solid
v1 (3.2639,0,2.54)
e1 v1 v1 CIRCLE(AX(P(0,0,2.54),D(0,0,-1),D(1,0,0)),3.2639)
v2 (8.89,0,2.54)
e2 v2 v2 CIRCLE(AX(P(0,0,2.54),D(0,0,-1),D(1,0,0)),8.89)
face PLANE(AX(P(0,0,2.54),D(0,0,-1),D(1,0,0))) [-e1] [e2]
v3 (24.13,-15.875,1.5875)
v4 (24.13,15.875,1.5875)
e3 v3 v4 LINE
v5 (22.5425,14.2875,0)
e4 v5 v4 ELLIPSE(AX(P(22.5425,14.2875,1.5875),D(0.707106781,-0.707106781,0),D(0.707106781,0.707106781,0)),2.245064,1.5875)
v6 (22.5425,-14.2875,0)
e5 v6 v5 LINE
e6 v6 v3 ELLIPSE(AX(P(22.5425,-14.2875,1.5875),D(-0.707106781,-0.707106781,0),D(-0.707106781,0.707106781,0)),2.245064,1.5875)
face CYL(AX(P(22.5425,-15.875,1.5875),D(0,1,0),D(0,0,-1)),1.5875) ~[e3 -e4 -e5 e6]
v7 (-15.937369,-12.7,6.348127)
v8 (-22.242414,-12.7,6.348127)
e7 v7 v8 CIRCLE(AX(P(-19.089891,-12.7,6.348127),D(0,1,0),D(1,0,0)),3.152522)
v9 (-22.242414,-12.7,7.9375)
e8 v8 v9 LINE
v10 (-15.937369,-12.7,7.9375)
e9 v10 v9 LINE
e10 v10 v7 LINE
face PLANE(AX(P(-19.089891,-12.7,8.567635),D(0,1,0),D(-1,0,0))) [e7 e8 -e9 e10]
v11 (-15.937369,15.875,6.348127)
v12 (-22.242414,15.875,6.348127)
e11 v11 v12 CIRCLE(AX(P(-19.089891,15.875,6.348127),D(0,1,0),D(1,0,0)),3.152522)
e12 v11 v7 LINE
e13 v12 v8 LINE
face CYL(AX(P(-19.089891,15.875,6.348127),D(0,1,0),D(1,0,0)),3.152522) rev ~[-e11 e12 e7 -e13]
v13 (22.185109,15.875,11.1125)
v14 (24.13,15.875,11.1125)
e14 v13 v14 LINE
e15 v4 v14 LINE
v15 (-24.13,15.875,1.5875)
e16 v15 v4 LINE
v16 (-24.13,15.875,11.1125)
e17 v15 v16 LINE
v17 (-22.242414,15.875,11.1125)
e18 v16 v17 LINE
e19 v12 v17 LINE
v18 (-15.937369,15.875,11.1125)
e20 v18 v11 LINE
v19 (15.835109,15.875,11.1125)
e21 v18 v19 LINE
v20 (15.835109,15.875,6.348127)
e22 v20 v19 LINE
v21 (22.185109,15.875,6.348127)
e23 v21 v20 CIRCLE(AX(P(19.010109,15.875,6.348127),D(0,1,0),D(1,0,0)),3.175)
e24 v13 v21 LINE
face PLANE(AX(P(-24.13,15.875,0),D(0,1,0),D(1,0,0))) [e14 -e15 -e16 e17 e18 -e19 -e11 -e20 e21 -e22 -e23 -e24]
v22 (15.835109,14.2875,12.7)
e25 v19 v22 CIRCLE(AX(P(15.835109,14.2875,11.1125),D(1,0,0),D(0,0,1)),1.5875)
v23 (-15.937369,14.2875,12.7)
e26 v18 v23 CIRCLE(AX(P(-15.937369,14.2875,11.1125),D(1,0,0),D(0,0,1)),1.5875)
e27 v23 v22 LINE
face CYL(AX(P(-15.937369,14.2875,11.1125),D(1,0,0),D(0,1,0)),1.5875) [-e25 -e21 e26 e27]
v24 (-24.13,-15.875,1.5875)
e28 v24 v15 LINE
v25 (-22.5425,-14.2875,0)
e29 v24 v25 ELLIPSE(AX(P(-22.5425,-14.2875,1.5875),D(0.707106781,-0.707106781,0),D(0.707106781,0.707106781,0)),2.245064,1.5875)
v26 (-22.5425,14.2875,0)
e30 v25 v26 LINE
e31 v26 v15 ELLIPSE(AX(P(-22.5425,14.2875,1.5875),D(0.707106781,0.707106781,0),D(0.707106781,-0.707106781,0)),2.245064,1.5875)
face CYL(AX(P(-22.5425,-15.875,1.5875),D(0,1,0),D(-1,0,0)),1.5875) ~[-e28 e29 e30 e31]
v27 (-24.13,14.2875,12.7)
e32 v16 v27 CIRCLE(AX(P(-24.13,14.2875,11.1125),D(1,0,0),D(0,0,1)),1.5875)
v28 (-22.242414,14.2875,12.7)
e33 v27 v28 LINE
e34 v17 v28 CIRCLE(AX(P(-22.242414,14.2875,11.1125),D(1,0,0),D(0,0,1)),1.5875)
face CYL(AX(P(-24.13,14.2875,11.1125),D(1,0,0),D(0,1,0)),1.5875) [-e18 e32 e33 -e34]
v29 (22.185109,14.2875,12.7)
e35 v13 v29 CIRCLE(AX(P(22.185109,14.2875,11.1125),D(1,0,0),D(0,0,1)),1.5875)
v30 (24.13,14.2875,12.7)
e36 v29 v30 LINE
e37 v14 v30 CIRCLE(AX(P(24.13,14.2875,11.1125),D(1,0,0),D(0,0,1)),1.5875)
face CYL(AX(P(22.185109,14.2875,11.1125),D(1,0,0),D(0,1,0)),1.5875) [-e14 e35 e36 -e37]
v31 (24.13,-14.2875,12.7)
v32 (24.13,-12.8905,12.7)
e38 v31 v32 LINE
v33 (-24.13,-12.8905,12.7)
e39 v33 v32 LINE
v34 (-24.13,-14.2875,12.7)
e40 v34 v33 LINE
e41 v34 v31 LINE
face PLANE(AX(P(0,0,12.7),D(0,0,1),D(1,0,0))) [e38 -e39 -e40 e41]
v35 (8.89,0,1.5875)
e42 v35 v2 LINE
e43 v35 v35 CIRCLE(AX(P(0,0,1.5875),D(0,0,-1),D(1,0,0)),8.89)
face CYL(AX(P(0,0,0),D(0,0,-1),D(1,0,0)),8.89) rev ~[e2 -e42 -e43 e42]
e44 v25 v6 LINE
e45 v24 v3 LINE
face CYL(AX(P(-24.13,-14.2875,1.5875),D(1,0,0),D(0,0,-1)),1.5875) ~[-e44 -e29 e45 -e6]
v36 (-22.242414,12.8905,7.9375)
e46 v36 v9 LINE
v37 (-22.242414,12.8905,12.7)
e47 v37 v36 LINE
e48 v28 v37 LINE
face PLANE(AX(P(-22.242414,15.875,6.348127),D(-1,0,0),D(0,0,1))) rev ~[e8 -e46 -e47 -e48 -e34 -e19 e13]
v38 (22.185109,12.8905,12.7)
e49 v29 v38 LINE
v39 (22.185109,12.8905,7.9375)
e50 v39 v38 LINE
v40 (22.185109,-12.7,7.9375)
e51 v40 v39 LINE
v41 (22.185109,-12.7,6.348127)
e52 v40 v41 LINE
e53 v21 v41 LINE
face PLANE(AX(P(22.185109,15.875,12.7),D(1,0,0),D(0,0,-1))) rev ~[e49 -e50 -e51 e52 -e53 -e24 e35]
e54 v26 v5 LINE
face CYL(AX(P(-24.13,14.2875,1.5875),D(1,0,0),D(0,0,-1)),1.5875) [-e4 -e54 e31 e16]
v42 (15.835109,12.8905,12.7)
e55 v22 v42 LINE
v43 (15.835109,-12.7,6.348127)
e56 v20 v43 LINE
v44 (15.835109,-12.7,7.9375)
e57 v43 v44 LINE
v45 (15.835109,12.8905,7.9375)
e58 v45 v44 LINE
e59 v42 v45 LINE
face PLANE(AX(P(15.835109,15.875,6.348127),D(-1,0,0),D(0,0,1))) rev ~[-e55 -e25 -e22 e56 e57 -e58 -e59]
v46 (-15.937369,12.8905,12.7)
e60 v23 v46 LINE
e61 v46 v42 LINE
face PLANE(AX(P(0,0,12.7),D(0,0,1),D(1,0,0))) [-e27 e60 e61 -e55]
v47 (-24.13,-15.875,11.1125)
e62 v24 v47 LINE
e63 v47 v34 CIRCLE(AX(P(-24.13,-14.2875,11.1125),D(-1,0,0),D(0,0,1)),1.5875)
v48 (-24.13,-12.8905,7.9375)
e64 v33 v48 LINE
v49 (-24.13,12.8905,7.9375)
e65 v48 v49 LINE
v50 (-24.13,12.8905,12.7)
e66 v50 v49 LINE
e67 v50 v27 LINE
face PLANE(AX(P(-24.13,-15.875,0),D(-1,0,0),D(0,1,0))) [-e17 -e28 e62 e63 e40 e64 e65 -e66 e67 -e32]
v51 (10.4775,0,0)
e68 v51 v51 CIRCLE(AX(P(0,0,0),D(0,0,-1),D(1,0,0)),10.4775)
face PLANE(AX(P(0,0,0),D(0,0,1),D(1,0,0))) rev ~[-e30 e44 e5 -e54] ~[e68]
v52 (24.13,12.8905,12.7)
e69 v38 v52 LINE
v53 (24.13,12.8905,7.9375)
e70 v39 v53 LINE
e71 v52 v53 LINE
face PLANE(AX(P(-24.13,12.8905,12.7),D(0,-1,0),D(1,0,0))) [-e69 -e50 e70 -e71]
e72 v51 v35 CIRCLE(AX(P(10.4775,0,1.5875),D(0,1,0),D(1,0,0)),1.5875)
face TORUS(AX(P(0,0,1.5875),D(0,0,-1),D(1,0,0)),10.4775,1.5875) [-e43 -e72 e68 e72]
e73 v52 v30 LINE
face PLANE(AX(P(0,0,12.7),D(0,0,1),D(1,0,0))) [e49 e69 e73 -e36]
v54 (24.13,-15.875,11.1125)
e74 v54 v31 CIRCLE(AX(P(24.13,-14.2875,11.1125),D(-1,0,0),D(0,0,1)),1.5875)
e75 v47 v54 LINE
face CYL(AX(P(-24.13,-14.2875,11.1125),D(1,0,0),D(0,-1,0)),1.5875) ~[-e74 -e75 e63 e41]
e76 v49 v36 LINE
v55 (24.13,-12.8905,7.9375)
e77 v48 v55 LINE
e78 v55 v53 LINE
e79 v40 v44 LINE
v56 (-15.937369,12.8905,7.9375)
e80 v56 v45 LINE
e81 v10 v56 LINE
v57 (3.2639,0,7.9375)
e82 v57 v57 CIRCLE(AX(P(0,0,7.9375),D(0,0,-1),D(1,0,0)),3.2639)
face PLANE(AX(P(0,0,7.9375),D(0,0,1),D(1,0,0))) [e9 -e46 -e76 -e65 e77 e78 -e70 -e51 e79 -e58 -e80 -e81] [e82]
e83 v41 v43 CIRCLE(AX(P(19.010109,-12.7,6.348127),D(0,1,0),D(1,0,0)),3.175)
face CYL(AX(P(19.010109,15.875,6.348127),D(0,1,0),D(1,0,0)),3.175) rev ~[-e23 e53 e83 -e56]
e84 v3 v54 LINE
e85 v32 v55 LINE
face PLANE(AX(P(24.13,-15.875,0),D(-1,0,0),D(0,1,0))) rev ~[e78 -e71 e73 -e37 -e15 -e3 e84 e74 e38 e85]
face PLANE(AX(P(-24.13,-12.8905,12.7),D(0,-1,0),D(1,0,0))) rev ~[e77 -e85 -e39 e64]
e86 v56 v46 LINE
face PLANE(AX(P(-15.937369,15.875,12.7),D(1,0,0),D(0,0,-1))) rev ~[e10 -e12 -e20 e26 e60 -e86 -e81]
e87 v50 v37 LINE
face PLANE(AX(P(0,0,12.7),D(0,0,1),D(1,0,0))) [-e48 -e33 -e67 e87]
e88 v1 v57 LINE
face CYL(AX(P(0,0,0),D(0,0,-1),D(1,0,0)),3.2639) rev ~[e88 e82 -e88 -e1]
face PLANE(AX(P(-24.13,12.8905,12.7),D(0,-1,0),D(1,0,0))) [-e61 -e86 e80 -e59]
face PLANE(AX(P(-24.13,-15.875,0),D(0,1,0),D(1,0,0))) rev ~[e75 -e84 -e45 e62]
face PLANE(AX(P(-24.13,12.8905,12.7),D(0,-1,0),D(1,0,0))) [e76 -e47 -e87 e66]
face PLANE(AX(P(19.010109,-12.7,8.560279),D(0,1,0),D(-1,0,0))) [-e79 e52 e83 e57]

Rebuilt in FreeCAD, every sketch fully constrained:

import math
import FreeCAD as App
import Part
import Sketcher
Q = App.Units.Quantity


def edges_at(feature, points):
    """Names of the edges that pass closest to the given points."""
    edges = feature.Shape.Edges
    near = lambda p: min(range(len(edges)), key=lambda i: edges[i].distToShape(Part.Vertex(*p))[0])
    return sorted({f"Edge{near(p) + 1}" for p in points})


def add_polygon(sketch, points):
    """Adds a closed chain of lines whose ends are joined by coincident constraints."""
    first, n = sketch.GeometryCount, len(points)
    for a, b in zip(points, points[1:] + points[:1]):
        sketch.addGeometry(Part.LineSegment(App.Vector(*a, 0), App.Vector(*b, 0)), False)
    for i in range(n):
        sketch.addConstraint(Sketcher.Constraint("Coincident", first + i, 2, first + (i + 1) % n, 1))

doc = App.newDocument("Part")
body = doc.addObject("PartDesign::Body", "Body")

sketch1 = doc.addObject("Sketcher::SketchObject", "Sketch")
body.addObject(sketch1)
sketch1.AttachmentSupport = (doc.XY_Plane, [""])
sketch1.MapMode = "FlatFace"
add_polygon(sketch1, [(-24, 16), (-24, -16), (24, -16), (24, 16)])
sketch1.addConstraint([
    Sketcher.Constraint("Vertical", 0),
    Sketcher.Constraint("Horizontal", 1),
    Sketcher.Constraint("Vertical", 2),
    Sketcher.Constraint("Horizontal", 3),
    Sketcher.Constraint("Symmetric", 0, 2, 2, 2, -1, 1),
    Sketcher.Constraint("DistanceX", 1, 1, 1, 2, Q("1.9 in")),
    Sketcher.Constraint("DistanceY", 0, 2, 0, 1, Q("1.25 in")),
])
pad1 = doc.addObject("PartDesign::Pad", "Pad")
body.addObject(pad1)
pad1.Profile = sketch1
pad1.Length = Q("0.5 in")

sketch2 = doc.addObject("Sketcher::SketchObject", "Sketch001")
body.addObject(sketch2)
sketch2.AttachmentSupport = (doc.XY_Plane, [""])
sketch2.MapMode = "FlatFace"
sketch2.AttachmentOffset = App.Placement(App.Vector(0, 0, 0.5 * 25.4), App.Rotation())
add_polygon(sketch2, [(-24, 13), (-24, -13), (24, -13), (24, 13)])
sketch2.addConstraint([
    Sketcher.Constraint("Vertical", 0),
    Sketcher.Constraint("Horizontal", 1),
    Sketcher.Constraint("Vertical", 2),
    Sketcher.Constraint("Horizontal", 3),
    Sketcher.Constraint("Symmetric", 0, 2, 2, 2, -1, 1),
    Sketcher.Constraint("DistanceX", 1, 1, 1, 2, Q("1.9 in")),
    Sketcher.Constraint("DistanceY", 0, 2, 0, 1, Q("1.015 in")),
])
pocket1 = doc.addObject("PartDesign::Pocket", "Pocket")
body.addObject(pocket1)
pocket1.Profile = sketch2
pocket1.Length = Q("0.1875 in")

sketch3 = doc.addObject("Sketcher::SketchObject", "Sketch002")
body.addObject(sketch3)
sketch3.AttachmentSupport = (doc.XZ_Plane, [""])
sketch3.MapMode = "FlatFace"
sketch3.AttachmentOffset = App.Placement(App.Vector(0, 0, -0.625 * 25.4), App.Rotation())
sketch3.addGeometry([
    Part.LineSegment(App.Vector(22.2, 12.7, 0), App.Vector(22.2, 6.3, 0)),
    Part.ArcOfCircle(Part.Circle(App.Vector(19, 6.3, 0), App.Vector(0, 0, 1), 3.2), math.radians(180), math.radians(360)),
    Part.LineSegment(App.Vector(15.8, 6.3, 0), App.Vector(15.8, 12.7, 0)),
    Part.LineSegment(App.Vector(15.8, 12.7, 0), App.Vector(22.2, 12.7, 0)),
    Part.LineSegment(App.Vector(-22.2, 12.7, 0), App.Vector(-15.9, 12.7, 0)),
    Part.LineSegment(App.Vector(-15.9, 12.7, 0), App.Vector(-15.9, 6.3, 0)),
    Part.ArcOfCircle(Part.Circle(App.Vector(-19.1, 6.3, 0), App.Vector(0, 0, 1), 3.2), math.radians(180), math.radians(360)),
    Part.LineSegment(App.Vector(-22.2, 6.3, 0), App.Vector(-22.2, 12.7, 0)),
], False)
sketch3.addConstraint([
    Sketcher.Constraint("Tangent", 0, 2, 1, 2),
    Sketcher.Constraint("Tangent", 1, 1, 2, 1),
    Sketcher.Constraint("Coincident", 2, 2, 3, 1),
    Sketcher.Constraint("Coincident", 3, 2, 0, 1),
    Sketcher.Constraint("Coincident", 4, 2, 5, 1),
    Sketcher.Constraint("Tangent", 5, 2, 6, 2),
    Sketcher.Constraint("Tangent", 6, 1, 7, 1),
    Sketcher.Constraint("Coincident", 7, 2, 4, 1),
    Sketcher.Constraint("Vertical", 0),
    Sketcher.Constraint("Vertical", 2),
    Sketcher.Constraint("Horizontal", 3),
    Sketcher.Constraint("Horizontal", 4),
    Sketcher.Constraint("Vertical", 5),
    Sketcher.Constraint("Vertical", 7),
    Sketcher.Constraint("Horizontal", 1, 3, 6, 3),
    Sketcher.Constraint("Horizontal", 3, 2, 4, 2),
    Sketcher.Constraint("Radius", 1, Q("0.125 in")),
    Sketcher.Constraint("DistanceY", -1, 1, 2, 2, Q("0.5 in")),
    Sketcher.Constraint("DistanceX", 6, 3, 1, 3, Q("1.5 in")),
    Sketcher.Constraint("Radius", 6, 3.152522),
    Sketcher.Constraint("DistanceY", 0, 2, 0, 1, 6.351873),
    Sketcher.Constraint("DistanceX", -1, 1, 1, 3, 19.010109),
])
pocket2 = doc.addObject("PartDesign::Pocket", "Pocket001")
body.addObject(pocket2)
pocket2.Profile = sketch3
pocket2.Length = Q("1.125 in")
pocket2.Reversed = True

sketch4 = doc.addObject("Sketcher::SketchObject", "Sketch003")
body.addObject(sketch4)
sketch4.AttachmentSupport = (doc.XY_Plane, [""])
sketch4.MapMode = "FlatFace"
sketch4.addGeometry(Part.Circle(App.Vector(0, 0, 0), App.Vector(0, 0, 1), 3.3), False)
sketch4.addConstraint([
    Sketcher.Constraint("Coincident", 0, 3, -1, 1),
    Sketcher.Constraint("Diameter", 0, Q("0.257 in")),
])
pocket3 = doc.addObject("PartDesign::Pocket", "Pocket002")
body.addObject(pocket3)
pocket3.Profile = sketch4
pocket3.Type = "ThroughAll"
pocket3.Reversed = True

sketch5 = doc.addObject("Sketcher::SketchObject", "Sketch004")
body.addObject(sketch5)
sketch5.AttachmentSupport = (doc.XY_Plane, [""])
sketch5.MapMode = "FlatFace"
sketch5.addGeometry([
    Part.Circle(App.Vector(0, 0, 0), App.Vector(0, 0, 1), 8.9),
    Part.Circle(App.Vector(0, 0, 0), App.Vector(0, 0, 1), 3.3),
], False)
sketch5.addConstraint([
    Sketcher.Constraint("Coincident", 0, 3, -1, 1),
    Sketcher.Constraint("Coincident", 1, 3, -1, 1),
    Sketcher.Constraint("Diameter", 0, Q("0.7 in")),
    Sketcher.Constraint("Diameter", 1, Q("0.257 in")),
])
pocket4 = doc.addObject("PartDesign::Pocket", "Pocket003")
body.addObject(pocket4)
pocket4.Profile = sketch5
pocket4.Length = Q("0.1 in")
pocket4.Reversed = True
doc.recompute()

fillet = doc.addObject("PartDesign::Fillet", "Fillet")
body.addObject(fillet)
fillet.Base = (pocket4, edges_at(pocket4, [
    (24.13, 0, 0),
    (0, 15.875, 0),
    (-24.13, 0, 0),
    (0, -15.875, 0),
    (-8.89, 0, 0),
]))
fillet.Radius = Q("0.0625 in")
doc.recompute()

fillet2 = doc.addObject("PartDesign::Fillet", "Fillet001")
body.addObject(fillet2)
fillet2.Base = (fillet, edges_at(fillet, [(-0.051, 15.875, 12.7), (0, -15.875, 12.7)]))
fillet2.Radius = Q("0.0625 in")
doc.recompute()

fillet3 = doc.addObject("PartDesign::Fillet", "Fillet002")
body.addObject(fillet3)
fillet3.Base = (fillet2, edges_at(fillet2, [(-23.186, 15.875, 12.7)]))
fillet3.Radius = Q("0.0625 in")
doc.recompute()

fillet4 = doc.addObject("PartDesign::Fillet", "Fillet003")
body.addObject(fillet4)
fillet4.Base = (fillet3, edges_at(fillet3, [(23.158, 15.875, 12.7)]))
fillet4.Radius = Q("0.0625 in")

doc.recompute()
